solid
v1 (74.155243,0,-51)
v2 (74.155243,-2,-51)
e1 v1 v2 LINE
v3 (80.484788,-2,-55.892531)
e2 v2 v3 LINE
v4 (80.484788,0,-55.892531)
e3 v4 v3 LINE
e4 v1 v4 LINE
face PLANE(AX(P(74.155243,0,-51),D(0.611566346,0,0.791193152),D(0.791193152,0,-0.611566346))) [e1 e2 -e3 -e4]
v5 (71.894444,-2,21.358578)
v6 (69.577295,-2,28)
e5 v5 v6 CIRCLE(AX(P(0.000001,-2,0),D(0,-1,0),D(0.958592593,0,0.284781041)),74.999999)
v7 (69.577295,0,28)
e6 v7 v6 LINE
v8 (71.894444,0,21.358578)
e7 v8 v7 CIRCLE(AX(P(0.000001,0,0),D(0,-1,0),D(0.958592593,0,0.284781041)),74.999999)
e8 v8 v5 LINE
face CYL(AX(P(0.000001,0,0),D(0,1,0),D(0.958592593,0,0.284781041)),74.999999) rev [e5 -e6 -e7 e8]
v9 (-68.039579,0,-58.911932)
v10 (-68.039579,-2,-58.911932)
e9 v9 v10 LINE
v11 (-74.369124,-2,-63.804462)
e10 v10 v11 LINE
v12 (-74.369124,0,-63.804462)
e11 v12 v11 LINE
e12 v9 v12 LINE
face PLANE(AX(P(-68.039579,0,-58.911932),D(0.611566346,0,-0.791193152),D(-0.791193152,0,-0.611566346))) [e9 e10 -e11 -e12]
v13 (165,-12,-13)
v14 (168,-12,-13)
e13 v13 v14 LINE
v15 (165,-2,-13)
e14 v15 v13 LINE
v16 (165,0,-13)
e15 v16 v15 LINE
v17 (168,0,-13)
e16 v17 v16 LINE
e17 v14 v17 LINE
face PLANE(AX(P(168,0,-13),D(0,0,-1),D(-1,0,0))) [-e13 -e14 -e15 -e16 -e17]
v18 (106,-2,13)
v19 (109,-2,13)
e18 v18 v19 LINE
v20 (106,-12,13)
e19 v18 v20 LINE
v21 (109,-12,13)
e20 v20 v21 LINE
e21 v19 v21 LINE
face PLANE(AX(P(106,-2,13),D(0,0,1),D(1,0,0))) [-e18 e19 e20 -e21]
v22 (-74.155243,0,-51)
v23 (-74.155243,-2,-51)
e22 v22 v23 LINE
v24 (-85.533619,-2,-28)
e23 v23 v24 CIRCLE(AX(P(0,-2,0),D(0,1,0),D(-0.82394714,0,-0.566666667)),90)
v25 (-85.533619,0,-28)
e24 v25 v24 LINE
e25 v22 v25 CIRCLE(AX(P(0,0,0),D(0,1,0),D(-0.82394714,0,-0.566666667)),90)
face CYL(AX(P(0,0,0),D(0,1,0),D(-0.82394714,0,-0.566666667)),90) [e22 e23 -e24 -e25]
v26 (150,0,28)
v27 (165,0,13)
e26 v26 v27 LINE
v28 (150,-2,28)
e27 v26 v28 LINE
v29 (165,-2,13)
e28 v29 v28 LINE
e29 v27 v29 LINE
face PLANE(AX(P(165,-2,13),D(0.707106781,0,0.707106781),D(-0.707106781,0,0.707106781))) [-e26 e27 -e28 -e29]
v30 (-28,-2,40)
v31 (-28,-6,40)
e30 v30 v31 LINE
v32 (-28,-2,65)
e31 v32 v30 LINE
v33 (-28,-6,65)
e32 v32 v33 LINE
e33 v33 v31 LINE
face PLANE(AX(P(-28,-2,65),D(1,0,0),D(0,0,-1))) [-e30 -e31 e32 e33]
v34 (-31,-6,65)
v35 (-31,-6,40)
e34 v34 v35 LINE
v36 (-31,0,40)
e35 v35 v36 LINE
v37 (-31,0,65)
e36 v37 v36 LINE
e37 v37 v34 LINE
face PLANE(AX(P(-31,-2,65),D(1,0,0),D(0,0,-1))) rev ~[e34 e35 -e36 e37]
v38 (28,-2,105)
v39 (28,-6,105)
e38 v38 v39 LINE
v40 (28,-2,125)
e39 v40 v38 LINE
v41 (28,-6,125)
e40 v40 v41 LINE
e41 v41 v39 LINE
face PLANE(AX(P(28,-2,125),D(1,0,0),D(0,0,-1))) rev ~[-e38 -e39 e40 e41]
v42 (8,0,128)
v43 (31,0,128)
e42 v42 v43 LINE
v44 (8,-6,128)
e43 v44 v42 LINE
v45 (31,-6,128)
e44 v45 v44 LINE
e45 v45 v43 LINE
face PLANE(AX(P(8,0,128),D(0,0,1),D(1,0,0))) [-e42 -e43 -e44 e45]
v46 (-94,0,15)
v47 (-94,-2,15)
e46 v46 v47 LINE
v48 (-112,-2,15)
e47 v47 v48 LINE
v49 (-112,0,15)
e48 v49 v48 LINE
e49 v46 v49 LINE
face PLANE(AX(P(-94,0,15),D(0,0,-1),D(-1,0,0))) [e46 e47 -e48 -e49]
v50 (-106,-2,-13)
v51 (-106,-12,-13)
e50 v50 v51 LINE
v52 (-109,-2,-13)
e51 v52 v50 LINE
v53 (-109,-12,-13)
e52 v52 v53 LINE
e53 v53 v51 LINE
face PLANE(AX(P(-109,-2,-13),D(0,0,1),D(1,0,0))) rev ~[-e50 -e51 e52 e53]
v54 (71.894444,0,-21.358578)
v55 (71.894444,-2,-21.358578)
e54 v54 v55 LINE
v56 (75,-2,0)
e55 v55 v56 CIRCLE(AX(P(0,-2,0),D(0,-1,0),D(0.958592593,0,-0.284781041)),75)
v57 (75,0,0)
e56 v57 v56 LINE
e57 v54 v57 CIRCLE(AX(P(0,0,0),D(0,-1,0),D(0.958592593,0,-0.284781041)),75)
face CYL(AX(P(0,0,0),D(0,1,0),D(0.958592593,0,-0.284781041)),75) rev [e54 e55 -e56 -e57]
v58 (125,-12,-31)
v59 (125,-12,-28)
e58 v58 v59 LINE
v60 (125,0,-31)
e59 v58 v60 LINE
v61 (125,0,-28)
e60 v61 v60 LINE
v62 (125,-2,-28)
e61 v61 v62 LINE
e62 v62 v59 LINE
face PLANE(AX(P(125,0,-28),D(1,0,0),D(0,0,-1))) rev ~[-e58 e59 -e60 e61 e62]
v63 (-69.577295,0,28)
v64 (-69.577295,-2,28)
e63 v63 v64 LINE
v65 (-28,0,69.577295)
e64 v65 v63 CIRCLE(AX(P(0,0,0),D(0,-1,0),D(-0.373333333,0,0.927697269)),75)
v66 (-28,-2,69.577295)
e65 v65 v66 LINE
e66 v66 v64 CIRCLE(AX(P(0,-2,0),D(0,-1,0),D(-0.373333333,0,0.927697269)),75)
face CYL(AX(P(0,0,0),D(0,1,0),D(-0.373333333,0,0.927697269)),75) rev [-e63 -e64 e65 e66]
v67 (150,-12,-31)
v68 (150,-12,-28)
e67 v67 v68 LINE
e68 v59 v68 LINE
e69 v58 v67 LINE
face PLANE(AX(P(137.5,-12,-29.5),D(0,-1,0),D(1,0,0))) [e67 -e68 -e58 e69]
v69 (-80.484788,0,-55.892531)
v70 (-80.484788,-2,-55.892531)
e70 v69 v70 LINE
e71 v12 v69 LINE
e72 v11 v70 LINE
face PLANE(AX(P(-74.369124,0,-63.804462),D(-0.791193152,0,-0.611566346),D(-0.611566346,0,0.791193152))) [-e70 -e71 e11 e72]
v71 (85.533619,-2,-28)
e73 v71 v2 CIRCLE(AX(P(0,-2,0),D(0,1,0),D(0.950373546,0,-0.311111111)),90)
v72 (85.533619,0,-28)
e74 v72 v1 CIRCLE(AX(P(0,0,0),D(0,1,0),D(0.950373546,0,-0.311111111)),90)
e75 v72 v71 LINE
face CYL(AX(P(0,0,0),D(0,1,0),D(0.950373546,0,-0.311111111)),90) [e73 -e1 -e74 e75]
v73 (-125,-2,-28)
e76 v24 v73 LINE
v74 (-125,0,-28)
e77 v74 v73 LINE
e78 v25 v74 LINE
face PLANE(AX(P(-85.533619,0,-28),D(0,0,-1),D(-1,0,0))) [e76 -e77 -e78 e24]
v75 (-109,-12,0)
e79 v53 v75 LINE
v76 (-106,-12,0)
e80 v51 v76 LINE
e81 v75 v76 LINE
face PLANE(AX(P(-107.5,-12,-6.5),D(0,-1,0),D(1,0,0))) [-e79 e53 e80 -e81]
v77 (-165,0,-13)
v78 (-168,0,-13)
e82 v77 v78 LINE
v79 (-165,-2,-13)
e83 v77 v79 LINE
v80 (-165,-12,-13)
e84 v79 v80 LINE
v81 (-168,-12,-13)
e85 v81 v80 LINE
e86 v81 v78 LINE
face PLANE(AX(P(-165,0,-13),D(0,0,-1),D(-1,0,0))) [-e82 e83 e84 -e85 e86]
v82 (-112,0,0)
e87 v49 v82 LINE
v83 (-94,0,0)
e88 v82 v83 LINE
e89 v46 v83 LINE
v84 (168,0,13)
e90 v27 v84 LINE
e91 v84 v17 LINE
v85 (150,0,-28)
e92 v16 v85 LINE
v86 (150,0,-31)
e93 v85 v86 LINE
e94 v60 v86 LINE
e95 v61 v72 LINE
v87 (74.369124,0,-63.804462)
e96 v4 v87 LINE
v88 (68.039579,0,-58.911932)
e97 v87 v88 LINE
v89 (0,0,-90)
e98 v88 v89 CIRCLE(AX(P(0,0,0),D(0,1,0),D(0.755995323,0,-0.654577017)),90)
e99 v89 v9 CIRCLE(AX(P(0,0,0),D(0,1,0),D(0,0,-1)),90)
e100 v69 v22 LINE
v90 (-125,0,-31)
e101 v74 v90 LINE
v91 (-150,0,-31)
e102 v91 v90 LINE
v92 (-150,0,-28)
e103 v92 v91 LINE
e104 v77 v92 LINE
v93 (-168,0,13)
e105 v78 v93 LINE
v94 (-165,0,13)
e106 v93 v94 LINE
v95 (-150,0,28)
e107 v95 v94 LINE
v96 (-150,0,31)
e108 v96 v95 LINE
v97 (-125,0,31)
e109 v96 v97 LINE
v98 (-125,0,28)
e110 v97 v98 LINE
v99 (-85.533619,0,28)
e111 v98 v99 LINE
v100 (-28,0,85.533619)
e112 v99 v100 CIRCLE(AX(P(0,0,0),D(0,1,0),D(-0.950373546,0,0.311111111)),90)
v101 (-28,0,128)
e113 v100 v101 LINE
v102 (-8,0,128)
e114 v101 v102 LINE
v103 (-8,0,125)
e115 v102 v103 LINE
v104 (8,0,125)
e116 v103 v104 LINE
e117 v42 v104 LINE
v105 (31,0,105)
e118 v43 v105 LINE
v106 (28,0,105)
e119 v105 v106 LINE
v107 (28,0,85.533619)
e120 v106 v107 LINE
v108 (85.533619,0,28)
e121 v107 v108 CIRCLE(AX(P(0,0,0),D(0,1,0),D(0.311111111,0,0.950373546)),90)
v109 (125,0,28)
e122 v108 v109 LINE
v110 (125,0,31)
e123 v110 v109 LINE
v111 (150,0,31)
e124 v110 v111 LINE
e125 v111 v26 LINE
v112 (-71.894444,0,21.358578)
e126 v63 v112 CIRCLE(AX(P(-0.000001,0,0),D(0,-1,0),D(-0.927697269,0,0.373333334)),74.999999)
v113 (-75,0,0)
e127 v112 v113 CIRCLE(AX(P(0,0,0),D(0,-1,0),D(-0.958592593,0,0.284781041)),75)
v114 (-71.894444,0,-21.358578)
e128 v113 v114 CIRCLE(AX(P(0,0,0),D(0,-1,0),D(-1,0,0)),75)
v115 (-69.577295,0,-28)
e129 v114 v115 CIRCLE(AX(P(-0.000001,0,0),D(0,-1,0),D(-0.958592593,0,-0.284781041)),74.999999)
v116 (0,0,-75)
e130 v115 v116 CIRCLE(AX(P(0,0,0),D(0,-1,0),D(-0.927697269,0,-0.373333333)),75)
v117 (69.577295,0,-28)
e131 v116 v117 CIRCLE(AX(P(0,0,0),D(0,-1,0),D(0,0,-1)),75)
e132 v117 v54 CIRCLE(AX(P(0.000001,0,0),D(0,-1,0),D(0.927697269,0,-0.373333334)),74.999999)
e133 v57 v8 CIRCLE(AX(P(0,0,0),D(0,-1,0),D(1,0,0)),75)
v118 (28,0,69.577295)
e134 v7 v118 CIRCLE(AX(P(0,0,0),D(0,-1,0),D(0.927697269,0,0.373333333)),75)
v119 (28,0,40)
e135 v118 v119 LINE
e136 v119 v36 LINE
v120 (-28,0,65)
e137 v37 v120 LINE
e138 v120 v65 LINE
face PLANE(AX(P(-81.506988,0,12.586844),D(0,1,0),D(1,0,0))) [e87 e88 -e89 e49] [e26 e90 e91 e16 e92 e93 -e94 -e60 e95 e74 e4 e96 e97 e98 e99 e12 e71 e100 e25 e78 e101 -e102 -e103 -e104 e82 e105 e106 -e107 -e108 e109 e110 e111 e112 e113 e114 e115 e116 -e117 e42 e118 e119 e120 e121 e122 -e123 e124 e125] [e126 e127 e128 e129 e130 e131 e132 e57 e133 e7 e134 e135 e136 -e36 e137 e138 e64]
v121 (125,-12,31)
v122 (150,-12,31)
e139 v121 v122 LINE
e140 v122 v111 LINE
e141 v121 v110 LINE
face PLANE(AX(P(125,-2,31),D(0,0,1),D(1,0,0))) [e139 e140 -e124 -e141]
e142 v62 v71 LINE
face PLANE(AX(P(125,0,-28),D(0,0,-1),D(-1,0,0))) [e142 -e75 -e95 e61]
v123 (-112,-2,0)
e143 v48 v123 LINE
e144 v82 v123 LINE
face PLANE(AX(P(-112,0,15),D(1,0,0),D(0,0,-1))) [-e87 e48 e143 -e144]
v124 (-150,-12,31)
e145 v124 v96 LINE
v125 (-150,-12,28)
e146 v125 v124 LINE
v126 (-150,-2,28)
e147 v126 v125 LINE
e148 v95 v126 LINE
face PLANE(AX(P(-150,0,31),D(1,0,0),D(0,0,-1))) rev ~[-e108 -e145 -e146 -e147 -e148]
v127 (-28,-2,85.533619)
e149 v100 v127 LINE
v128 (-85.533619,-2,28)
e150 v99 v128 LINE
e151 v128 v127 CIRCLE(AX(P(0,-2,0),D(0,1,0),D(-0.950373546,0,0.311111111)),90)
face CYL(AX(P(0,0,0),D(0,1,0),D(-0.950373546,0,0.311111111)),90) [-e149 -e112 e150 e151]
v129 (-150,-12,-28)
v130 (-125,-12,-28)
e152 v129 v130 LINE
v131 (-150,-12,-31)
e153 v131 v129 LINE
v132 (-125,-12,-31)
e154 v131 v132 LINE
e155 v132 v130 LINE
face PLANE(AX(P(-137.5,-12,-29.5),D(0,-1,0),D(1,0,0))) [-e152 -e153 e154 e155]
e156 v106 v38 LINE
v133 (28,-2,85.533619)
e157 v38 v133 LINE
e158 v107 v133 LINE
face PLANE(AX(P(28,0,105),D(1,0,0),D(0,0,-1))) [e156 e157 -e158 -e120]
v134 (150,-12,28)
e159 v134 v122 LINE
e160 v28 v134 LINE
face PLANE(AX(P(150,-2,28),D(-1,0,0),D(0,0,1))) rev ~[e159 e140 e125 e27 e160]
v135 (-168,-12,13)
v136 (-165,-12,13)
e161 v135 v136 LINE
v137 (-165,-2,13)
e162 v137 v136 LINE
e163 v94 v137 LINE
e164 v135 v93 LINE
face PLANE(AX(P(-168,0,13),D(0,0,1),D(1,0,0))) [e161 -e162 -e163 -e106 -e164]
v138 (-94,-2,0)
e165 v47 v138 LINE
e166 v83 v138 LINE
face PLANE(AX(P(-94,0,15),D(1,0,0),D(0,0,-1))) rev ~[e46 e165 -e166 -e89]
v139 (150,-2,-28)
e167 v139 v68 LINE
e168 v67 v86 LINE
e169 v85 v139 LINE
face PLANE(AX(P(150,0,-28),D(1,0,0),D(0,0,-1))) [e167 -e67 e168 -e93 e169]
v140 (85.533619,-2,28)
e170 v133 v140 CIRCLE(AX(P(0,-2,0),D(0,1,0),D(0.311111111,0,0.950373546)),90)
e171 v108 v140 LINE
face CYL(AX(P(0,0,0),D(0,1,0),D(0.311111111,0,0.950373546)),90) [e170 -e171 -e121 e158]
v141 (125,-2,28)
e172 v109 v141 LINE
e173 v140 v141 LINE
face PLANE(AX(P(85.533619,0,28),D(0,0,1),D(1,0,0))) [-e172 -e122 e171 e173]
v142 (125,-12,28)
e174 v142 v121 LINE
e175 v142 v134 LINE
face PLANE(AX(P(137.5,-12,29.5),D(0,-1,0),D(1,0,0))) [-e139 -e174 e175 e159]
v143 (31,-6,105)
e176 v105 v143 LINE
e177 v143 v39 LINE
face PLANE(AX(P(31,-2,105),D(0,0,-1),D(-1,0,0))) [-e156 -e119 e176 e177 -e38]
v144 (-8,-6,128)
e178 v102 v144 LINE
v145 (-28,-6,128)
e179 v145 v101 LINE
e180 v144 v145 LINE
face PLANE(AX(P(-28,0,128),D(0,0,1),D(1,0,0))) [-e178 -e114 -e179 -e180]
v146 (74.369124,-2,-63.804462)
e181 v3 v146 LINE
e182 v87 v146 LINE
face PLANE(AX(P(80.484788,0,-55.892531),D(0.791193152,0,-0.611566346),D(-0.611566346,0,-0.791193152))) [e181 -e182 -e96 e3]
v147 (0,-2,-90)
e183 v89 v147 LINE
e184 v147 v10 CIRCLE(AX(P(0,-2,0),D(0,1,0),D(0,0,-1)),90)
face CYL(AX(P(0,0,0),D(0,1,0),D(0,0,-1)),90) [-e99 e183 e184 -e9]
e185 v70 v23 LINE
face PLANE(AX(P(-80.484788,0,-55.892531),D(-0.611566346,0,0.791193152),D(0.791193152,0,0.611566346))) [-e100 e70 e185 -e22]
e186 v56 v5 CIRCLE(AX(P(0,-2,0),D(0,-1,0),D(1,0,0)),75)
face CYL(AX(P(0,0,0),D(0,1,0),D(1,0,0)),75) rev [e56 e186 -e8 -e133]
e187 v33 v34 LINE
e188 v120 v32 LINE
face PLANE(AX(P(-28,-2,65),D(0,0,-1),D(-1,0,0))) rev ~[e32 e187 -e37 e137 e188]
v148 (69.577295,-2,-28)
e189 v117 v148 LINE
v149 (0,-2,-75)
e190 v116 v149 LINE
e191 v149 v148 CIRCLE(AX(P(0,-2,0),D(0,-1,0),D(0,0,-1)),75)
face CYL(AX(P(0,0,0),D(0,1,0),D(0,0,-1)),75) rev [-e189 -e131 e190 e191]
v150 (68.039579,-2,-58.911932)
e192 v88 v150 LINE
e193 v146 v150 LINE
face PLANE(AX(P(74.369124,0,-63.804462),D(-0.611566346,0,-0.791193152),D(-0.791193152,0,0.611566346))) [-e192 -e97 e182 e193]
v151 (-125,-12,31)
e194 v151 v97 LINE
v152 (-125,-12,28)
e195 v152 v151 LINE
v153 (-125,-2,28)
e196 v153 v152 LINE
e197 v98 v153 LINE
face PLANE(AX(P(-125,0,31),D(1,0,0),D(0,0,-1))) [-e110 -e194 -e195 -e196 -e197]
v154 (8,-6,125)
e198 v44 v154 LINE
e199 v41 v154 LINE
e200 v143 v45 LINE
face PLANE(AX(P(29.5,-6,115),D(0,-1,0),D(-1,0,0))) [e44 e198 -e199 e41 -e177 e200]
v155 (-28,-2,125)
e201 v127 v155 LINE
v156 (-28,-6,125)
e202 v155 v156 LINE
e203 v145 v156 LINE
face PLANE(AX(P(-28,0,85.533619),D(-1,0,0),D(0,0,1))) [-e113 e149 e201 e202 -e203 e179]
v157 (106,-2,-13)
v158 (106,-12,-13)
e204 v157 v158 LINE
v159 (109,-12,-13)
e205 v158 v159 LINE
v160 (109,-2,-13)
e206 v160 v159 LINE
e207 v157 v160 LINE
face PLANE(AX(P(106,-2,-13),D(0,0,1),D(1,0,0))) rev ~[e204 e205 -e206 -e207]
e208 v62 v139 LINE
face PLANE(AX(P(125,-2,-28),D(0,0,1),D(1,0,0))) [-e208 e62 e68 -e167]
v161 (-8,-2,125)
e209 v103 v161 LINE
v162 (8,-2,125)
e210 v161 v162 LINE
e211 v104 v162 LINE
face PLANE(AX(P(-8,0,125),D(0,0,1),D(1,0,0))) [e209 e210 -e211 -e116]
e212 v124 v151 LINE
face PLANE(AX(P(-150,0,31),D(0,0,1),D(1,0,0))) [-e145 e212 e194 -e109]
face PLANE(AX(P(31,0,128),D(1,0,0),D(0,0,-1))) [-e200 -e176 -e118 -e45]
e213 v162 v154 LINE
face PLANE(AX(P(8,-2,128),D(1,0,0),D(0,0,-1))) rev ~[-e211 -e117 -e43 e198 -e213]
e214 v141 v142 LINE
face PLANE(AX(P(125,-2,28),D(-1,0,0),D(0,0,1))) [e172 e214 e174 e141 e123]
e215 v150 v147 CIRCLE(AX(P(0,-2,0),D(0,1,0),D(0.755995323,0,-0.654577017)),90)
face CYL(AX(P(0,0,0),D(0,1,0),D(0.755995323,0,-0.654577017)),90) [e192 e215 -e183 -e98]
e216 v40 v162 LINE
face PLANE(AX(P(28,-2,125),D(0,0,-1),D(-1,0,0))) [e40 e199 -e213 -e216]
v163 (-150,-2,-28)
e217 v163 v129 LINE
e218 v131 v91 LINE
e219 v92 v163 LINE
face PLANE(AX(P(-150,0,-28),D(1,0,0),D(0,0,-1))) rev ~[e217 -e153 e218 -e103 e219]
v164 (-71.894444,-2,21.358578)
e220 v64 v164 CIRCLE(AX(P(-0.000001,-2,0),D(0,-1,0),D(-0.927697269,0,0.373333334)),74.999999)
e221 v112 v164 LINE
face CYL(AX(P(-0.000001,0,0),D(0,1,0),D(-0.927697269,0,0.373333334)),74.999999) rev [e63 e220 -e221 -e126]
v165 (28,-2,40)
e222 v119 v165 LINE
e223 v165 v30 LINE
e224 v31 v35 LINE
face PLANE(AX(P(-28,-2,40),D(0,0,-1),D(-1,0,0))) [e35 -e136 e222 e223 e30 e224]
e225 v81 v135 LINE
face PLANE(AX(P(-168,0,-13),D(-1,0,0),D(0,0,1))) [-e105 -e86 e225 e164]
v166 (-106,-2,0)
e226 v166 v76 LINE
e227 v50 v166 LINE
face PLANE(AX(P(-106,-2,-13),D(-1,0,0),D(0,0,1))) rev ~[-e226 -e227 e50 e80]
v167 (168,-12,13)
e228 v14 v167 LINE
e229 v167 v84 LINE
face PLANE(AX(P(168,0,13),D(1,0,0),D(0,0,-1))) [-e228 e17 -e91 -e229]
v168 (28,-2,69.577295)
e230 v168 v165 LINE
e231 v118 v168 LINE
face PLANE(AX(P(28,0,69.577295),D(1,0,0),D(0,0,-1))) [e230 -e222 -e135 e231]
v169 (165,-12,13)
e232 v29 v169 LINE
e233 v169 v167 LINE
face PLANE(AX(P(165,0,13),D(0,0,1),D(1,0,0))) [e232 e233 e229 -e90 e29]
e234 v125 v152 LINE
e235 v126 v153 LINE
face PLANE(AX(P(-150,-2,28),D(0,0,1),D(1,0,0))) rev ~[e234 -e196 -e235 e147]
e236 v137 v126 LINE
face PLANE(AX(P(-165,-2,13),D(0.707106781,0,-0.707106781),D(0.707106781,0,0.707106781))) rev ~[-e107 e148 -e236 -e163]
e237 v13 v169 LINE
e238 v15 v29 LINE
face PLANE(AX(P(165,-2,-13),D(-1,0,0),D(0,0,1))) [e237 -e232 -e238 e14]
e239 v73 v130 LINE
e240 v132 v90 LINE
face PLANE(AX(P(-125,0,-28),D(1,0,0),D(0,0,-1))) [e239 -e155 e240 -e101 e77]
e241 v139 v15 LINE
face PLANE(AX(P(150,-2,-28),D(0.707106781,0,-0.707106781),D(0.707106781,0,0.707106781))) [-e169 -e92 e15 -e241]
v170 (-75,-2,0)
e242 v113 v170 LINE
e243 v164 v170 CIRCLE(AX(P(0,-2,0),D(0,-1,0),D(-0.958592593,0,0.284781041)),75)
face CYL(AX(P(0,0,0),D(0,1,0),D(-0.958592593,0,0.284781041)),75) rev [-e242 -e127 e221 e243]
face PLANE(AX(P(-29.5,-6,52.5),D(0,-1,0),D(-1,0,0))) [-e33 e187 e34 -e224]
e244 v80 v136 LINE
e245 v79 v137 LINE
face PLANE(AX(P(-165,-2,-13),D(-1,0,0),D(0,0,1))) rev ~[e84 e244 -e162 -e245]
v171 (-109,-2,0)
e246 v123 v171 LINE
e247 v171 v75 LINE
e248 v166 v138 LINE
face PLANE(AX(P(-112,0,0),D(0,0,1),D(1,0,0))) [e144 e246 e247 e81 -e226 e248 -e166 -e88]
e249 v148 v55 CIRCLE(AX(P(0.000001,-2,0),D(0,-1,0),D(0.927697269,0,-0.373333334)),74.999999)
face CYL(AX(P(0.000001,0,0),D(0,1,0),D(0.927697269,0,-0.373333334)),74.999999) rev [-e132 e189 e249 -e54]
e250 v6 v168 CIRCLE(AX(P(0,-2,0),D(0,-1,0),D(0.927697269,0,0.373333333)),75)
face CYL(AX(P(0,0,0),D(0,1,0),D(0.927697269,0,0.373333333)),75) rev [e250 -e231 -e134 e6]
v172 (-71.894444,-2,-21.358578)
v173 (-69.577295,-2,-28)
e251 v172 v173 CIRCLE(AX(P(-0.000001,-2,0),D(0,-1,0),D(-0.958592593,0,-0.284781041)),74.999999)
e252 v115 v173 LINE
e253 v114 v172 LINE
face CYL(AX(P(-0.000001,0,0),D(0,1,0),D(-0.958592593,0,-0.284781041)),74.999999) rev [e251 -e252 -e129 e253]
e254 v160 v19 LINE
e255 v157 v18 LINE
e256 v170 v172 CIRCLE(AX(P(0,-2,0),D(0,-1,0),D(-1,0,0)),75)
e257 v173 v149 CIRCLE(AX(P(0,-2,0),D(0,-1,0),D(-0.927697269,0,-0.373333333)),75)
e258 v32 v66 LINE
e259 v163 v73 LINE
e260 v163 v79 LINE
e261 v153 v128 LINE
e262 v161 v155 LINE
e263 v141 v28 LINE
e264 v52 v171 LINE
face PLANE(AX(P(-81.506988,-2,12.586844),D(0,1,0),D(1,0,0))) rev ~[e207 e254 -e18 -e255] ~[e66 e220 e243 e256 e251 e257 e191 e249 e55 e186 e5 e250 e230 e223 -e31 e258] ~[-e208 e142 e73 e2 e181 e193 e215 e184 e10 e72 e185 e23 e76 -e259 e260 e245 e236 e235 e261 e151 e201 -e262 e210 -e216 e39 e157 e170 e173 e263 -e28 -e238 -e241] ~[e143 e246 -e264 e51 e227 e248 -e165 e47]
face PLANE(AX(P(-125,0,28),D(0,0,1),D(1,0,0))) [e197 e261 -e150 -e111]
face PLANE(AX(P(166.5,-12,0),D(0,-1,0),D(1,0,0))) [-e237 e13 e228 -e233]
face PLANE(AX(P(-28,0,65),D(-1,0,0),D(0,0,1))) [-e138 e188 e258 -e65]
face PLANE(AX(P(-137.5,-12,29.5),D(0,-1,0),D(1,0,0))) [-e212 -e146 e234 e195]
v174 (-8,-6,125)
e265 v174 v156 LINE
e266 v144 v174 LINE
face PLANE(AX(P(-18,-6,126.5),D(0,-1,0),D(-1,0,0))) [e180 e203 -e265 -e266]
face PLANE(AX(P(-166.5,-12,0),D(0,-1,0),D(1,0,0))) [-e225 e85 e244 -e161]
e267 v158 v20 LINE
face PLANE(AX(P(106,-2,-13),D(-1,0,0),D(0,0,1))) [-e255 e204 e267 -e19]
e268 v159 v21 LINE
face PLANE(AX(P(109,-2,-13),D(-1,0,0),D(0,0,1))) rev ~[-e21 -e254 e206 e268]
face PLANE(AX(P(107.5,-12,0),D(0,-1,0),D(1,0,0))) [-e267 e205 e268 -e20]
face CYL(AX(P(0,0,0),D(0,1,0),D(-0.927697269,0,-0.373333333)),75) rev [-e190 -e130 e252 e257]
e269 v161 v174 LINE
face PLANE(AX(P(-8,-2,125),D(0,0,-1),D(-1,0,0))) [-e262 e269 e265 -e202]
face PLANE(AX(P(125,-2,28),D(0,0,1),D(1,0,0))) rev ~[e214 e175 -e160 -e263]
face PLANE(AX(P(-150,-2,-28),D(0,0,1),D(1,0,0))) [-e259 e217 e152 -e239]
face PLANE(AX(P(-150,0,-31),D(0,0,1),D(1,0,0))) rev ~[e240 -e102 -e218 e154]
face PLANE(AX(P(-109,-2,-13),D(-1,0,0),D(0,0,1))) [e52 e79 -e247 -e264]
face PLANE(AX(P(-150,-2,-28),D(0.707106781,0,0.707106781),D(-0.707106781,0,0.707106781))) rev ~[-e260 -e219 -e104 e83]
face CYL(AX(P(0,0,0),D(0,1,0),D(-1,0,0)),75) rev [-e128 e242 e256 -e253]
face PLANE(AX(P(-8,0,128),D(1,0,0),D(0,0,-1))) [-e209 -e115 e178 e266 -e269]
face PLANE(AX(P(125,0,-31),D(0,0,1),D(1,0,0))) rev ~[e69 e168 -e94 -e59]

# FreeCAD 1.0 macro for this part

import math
import FreeCAD as App
import Part
import Sketcher


def add_polygon(sketch, points):
    """Adds a closed chain of lines whose ends are joined by coincident constraints."""
    first, n = sketch.GeometryCount, len(points)
    for a, b in zip(points, points[1:] + points[:1]):
        sketch.addGeometry(Part.LineSegment(App.Vector(*a, 0), App.Vector(*b, 0)), False)
    for i in range(n):
        sketch.addConstraint(Sketcher.Constraint("Coincident", first + i, 2, first + (i + 1) % n, 1))

doc = App.newDocument("Part")
body = doc.addObject("PartDesign::Body", "Body")

# Sketch on XZ plane
sketch1 = body.newObject("Sketcher::SketchObject", "Sketch")
sketch1.AttachmentSupport = (doc.getObject("XZ_Plane"), [""])
sketch1.MapMode = "FlatFace"
sketch1.addGeometry(Part.LineSegment(App.Vector(31, 105, 0), App.Vector(28, 105, 0)), False)  # 0
sketch1.addGeometry(Part.LineSegment(App.Vector(28, 105, 0), App.Vector(28, 85.5, 0)), False)  # 1
sketch1.addGeometry(Part.ArcOfCircle(Part.Circle(App.Vector(0, 0, 0), App.Vector(0, 0, 1), 90), math.radians(18), math.radians(72)), False)  # 2
sketch1.addGeometry(Part.LineSegment(App.Vector(85.5, 28, 0), App.Vector(125, 28, 0)), False)  # 3
sketch1.addGeometry(Part.LineSegment(App.Vector(125, 28, 0), App.Vector(125, 31, 0)), False)  # 4
sketch1.addGeometry(Part.LineSegment(App.Vector(125, 31, 0), App.Vector(150, 31, 0)), False)  # 5
sketch1.addGeometry(Part.LineSegment(App.Vector(150, 31, 0), App.Vector(150, 28, 0)), False)  # 6
sketch1.addGeometry(Part.LineSegment(App.Vector(150, 28, 0), App.Vector(165, 28, 0)), False)  # 7
sketch1.addGeometry(Part.LineSegment(App.Vector(165, 28, 0), App.Vector(165, 13, 0)), False)  # 8
sketch1.addGeometry(Part.LineSegment(App.Vector(165, 13, 0), App.Vector(168, 13, 0)), False)  # 9
sketch1.addGeometry(Part.LineSegment(App.Vector(168, 13, 0), App.Vector(168, -13, 0)), False)  # 10
sketch1.addGeometry(Part.LineSegment(App.Vector(168, -13, 0), App.Vector(165, -13, 0)), False)  # 11
sketch1.addGeometry(Part.LineSegment(App.Vector(165, -13, 0), App.Vector(165, -28, 0)), False)  # 12
sketch1.addGeometry(Part.LineSegment(App.Vector(165, -28, 0), App.Vector(150, -28, 0)), False)  # 13
sketch1.addGeometry(Part.LineSegment(App.Vector(150, -28, 0), App.Vector(150, -31, 0)), False)  # 14
sketch1.addGeometry(Part.LineSegment(App.Vector(150, -31, 0), App.Vector(125, -31, 0)), False)  # 15
sketch1.addGeometry(Part.LineSegment(App.Vector(125, -31, 0), App.Vector(125, -28, 0)), False)  # 16
sketch1.addGeometry(Part.LineSegment(App.Vector(125, -28, 0), App.Vector(85.5, -28, 0)), False)  # 17
sketch1.addGeometry(Part.ArcOfCircle(Part.Circle(App.Vector(0, 0, 0), App.Vector(0, 0, 1), 90), math.radians(-34.52), math.radians(-18.13)), False)  # 18
sketch1.addGeometry(Part.LineSegment(App.Vector(74.2, -51, 0), App.Vector(80.5, -55.9, 0)), False)  # 19
sketch1.addGeometry(Part.LineSegment(App.Vector(80.5, -55.9, 0), App.Vector(74.4, -63.8, 0)), False)  # 20
sketch1.addGeometry(Part.LineSegment(App.Vector(74.4, -63.8, 0), App.Vector(68, -58.9, 0)), False)  # 21
sketch1.addGeometry(Part.ArcOfCircle(Part.Circle(App.Vector(0, 0, 0), App.Vector(0, 0, 1), 90), math.radians(-90), math.radians(-41)), False)  # 22
sketch1.addGeometry(Part.ArcOfCircle(Part.Circle(App.Vector(0, 0, 0), App.Vector(0, 0, 1), 90), math.radians(-139), math.radians(-90)), False)  # 23
sketch1.addGeometry(Part.LineSegment(App.Vector(-68, -58.9, 0), App.Vector(-74.4, -63.8, 0)), False)  # 24
sketch1.addGeometry(Part.LineSegment(App.Vector(-74.4, -63.8, 0), App.Vector(-80.5, -55.9, 0)), False)  # 25
sketch1.addGeometry(Part.LineSegment(App.Vector(-80.5, -55.9, 0), App.Vector(-74.2, -51, 0)), False)  # 26
sketch1.addGeometry(Part.ArcOfCircle(Part.Circle(App.Vector(0, 0, 0), App.Vector(0, 0, 1), 90), math.radians(-161.87), math.radians(-145.48)), False)  # 27
sketch1.addGeometry(Part.LineSegment(App.Vector(-85.5, -28, 0), App.Vector(-125, -28, 0)), False)  # 28
sketch1.addGeometry(Part.LineSegment(App.Vector(-125, -28, 0), App.Vector(-125, -31, 0)), False)  # 29
sketch1.addGeometry(Part.LineSegment(App.Vector(-125, -31, 0), App.Vector(-150, -31, 0)), False)  # 30
sketch1.addGeometry(Part.LineSegment(App.Vector(-150, -31, 0), App.Vector(-150, -28, 0)), False)  # 31
sketch1.addGeometry(Part.LineSegment(App.Vector(-150, -28, 0), App.Vector(-165, -28, 0)), False)  # 32
sketch1.addGeometry(Part.LineSegment(App.Vector(-165, -28, 0), App.Vector(-165, -13, 0)), False)  # 33
sketch1.addGeometry(Part.LineSegment(App.Vector(-165, -13, 0), App.Vector(-168, -13, 0)), False)  # 34
sketch1.addGeometry(Part.LineSegment(App.Vector(-168, -13, 0), App.Vector(-168, 13, 0)), False)  # 35
sketch1.addGeometry(Part.LineSegment(App.Vector(-168, 13, 0), App.Vector(-165, 13, 0)), False)  # 36
sketch1.addGeometry(Part.LineSegment(App.Vector(-165, 13, 0), App.Vector(-165, 28, 0)), False)  # 37
sketch1.addGeometry(Part.LineSegment(App.Vector(-165, 28, 0), App.Vector(-150, 28, 0)), False)  # 38
sketch1.addGeometry(Part.LineSegment(App.Vector(-150, 28, 0), App.Vector(-150, 31, 0)), False)  # 39
sketch1.addGeometry(Part.LineSegment(App.Vector(-150, 31, 0), App.Vector(-125, 31, 0)), False)  # 40
sketch1.addGeometry(Part.LineSegment(App.Vector(-125, 31, 0), App.Vector(-125, 28, 0)), False)  # 41
sketch1.addGeometry(Part.LineSegment(App.Vector(-125, 28, 0), App.Vector(-85.5, 28, 0)), False)  # 42
sketch1.addGeometry(Part.ArcOfCircle(Part.Circle(App.Vector(0, 0, 0), App.Vector(0, 0, 1), 90), math.radians(108), math.radians(162)), False)  # 43
sketch1.addGeometry(Part.LineSegment(App.Vector(-28, 85.5, 0), App.Vector(-28, 128, 0)), False)  # 44
sketch1.addGeometry(Part.LineSegment(App.Vector(-28, 128, 0), App.Vector(-8, 128, 0)), False)  # 45
sketch1.addGeometry(Part.LineSegment(App.Vector(-8, 128, 0), App.Vector(-8, 125, 0)), False)  # 46
sketch1.addGeometry(Part.LineSegment(App.Vector(-8, 125, 0), App.Vector(8, 125, 0)), False)  # 47
sketch1.addGeometry(Part.LineSegment(App.Vector(8, 125, 0), App.Vector(8, 128, 0)), False)  # 48
sketch1.addGeometry(Part.LineSegment(App.Vector(8, 128, 0), App.Vector(31, 128, 0)), False)  # 49
sketch1.addGeometry(Part.LineSegment(App.Vector(31, 128, 0), App.Vector(31, 105, 0)), False)  # 50
add_polygon(sketch1, [(-112, 15), (-112, 0), (-94, 0), (-94, 15)])  # lines 51-54
sketch1.addGeometry(Part.ArcOfCircle(Part.Circle(App.Vector(0, 0, 0), App.Vector(0, 0, 1), 75), math.radians(112), math.radians(158)), False)  # 55
sketch1.addGeometry(Part.ArcOfCircle(Part.Circle(App.Vector(0, 0, 0), App.Vector(0, 0, 1), 75), math.radians(158.08), math.radians(163.45)), False)  # 56
sketch1.addGeometry(Part.ArcOfCircle(Part.Circle(App.Vector(0, 0, 0), App.Vector(0, 0, 1), 75), math.radians(163.45), math.radians(180)), False)  # 57
sketch1.addGeometry(Part.ArcOfCircle(Part.Circle(App.Vector(0, 0, 0), App.Vector(0, 0, 1), 75), math.radians(-180), math.radians(-163.45)), False)  # 58
sketch1.addGeometry(Part.ArcOfCircle(Part.Circle(App.Vector(0, 0, 0), App.Vector(0, 0, 1), 75), math.radians(-163.45), math.radians(-158.08)), False)  # 59
sketch1.addGeometry(Part.ArcOfCircle(Part.Circle(App.Vector(0, 0, 0), App.Vector(0, 0, 1), 75), math.radians(-158), math.radians(-90)), False)  # 60
sketch1.addGeometry(Part.ArcOfCircle(Part.Circle(App.Vector(0, 0, 0), App.Vector(0, 0, 1), 75), math.radians(-90), math.radians(-22)), False)  # 61
sketch1.addGeometry(Part.ArcOfCircle(Part.Circle(App.Vector(0, 0, 0), App.Vector(0, 0, 1), 75), math.radians(-21.92), math.radians(-16.55)), False)  # 62
sketch1.addGeometry(Part.ArcOfCircle(Part.Circle(App.Vector(0, 0, 0), App.Vector(0, 0, 1), 75), math.radians(-16.55), math.radians(0)), False)  # 63
sketch1.addGeometry(Part.ArcOfCircle(Part.Circle(App.Vector(0, 0, 0), App.Vector(0, 0, 1), 75), math.radians(0), math.radians(16.55)), False)  # 64
sketch1.addGeometry(Part.ArcOfCircle(Part.Circle(App.Vector(0, 0, 0), App.Vector(0, 0, 1), 75), math.radians(16.55), math.radians(21.92)), False)  # 65
sketch1.addGeometry(Part.ArcOfCircle(Part.Circle(App.Vector(0, 0, 0), App.Vector(0, 0, 1), 75), math.radians(22), math.radians(68)), False)  # 66
sketch1.addGeometry(Part.LineSegment(App.Vector(28, 69.6, 0), App.Vector(28, 40, 0)), False)  # 67
sketch1.addGeometry(Part.LineSegment(App.Vector(28, 40, 0), App.Vector(-31, 40, 0)), False)  # 68
sketch1.addGeometry(Part.LineSegment(App.Vector(-31, 40, 0), App.Vector(-31, 65, 0)), False)  # 69
sketch1.addGeometry(Part.LineSegment(App.Vector(-31, 65, 0), App.Vector(-28, 65, 0)), False)  # 70
sketch1.addGeometry(Part.LineSegment(App.Vector(-28, 65, 0), App.Vector(-28, 69.6, 0)), False)  # 71
sketch1.addConstraint(Sketcher.Constraint("Coincident", 0, 2, 1, 1))
sketch1.addConstraint(Sketcher.Constraint("Coincident", 1, 2, 2, 2))
sketch1.addConstraint(Sketcher.Constraint("Coincident", 2, 1, 3, 1))
sketch1.addConstraint(Sketcher.Constraint("Coincident", 3, 2, 4, 1))
sketch1.addConstraint(Sketcher.Constraint("Coincident", 4, 2, 5, 1))
sketch1.addConstraint(Sketcher.Constraint("Coincident", 5, 2, 6, 1))
sketch1.addConstraint(Sketcher.Constraint("Coincident", 6, 2, 7, 1))
sketch1.addConstraint(Sketcher.Constraint("Coincident", 7, 2, 8, 1))
sketch1.addConstraint(Sketcher.Constraint("Coincident", 8, 2, 9, 1))
sketch1.addConstraint(Sketcher.Constraint("Coincident", 9, 2, 10, 1))
sketch1.addConstraint(Sketcher.Constraint("Coincident", 10, 2, 11, 1))
sketch1.addConstraint(Sketcher.Constraint("Coincident", 11, 2, 12, 1))
sketch1.addConstraint(Sketcher.Constraint("Coincident", 12, 2, 13, 1))
sketch1.addConstraint(Sketcher.Constraint("Coincident", 13, 2, 14, 1))
sketch1.addConstraint(Sketcher.Constraint("Coincident", 14, 2, 15, 1))
sketch1.addConstraint(Sketcher.Constraint("Coincident", 15, 2, 16, 1))
sketch1.addConstraint(Sketcher.Constraint("Coincident", 16, 2, 17, 1))
sketch1.addConstraint(Sketcher.Constraint("Coincident", 17, 2, 18, 2))
sketch1.addConstraint(Sketcher.Constraint("Coincident", 18, 1, 19, 1))
sketch1.addConstraint(Sketcher.Constraint("Coincident", 19, 2, 20, 1))
sketch1.addConstraint(Sketcher.Constraint("Coincident", 20, 2, 21, 1))
sketch1.addConstraint(Sketcher.Constraint("Coincident", 21, 2, 22, 2))
sketch1.addConstraint(Sketcher.Constraint("Tangent", 22, 1, 23, 2))
sketch1.addConstraint(Sketcher.Constraint("Coincident", 23, 1, 24, 1))
sketch1.addConstraint(Sketcher.Constraint("Coincident", 24, 2, 25, 1))
sketch1.addConstraint(Sketcher.Constraint("Coincident", 25, 2, 26, 1))
sketch1.addConstraint(Sketcher.Constraint("Coincident", 26, 2, 27, 2))
sketch1.addConstraint(Sketcher.Constraint("Coincident", 27, 1, 28, 1))
sketch1.addConstraint(Sketcher.Constraint("Coincident", 28, 2, 29, 1))
sketch1.addConstraint(Sketcher.Constraint("Coincident", 29, 2, 30, 1))
sketch1.addConstraint(Sketcher.Constraint("Coincident", 30, 2, 31, 1))
sketch1.addConstraint(Sketcher.Constraint("Coincident", 31, 2, 32, 1))
sketch1.addConstraint(Sketcher.Constraint("Coincident", 32, 2, 33, 1))
sketch1.addConstraint(Sketcher.Constraint("Coincident", 33, 2, 34, 1))
sketch1.addConstraint(Sketcher.Constraint("Coincident", 34, 2, 35, 1))
sketch1.addConstraint(Sketcher.Constraint("Coincident", 35, 2, 36, 1))
sketch1.addConstraint(Sketcher.Constraint("Coincident", 36, 2, 37, 1))
sketch1.addConstraint(Sketcher.Constraint("Coincident", 37, 2, 38, 1))
sketch1.addConstraint(Sketcher.Constraint("Coincident", 38, 2, 39, 1))
sketch1.addConstraint(Sketcher.Constraint("Coincident", 39, 2, 40, 1))
sketch1.addConstraint(Sketcher.Constraint("Coincident", 40, 2, 41, 1))
sketch1.addConstraint(Sketcher.Constraint("Coincident", 41, 2, 42, 1))
sketch1.addConstraint(Sketcher.Constraint("Coincident", 42, 2, 43, 2))
sketch1.addConstraint(Sketcher.Constraint("Coincident", 43, 1, 44, 1))
sketch1.addConstraint(Sketcher.Constraint("Coincident", 44, 2, 45, 1))
sketch1.addConstraint(Sketcher.Constraint("Coincident", 45, 2, 46, 1))
sketch1.addConstraint(Sketcher.Constraint("Coincident", 46, 2, 47, 1))
sketch1.addConstraint(Sketcher.Constraint("Coincident", 47, 2, 48, 1))
sketch1.addConstraint(Sketcher.Constraint("Coincident", 48, 2, 49, 1))
sketch1.addConstraint(Sketcher.Constraint("Coincident", 49, 2, 50, 1))
sketch1.addConstraint(Sketcher.Constraint("Coincident", 50, 2, 0, 1))
sketch1.addConstraint(Sketcher.Constraint("Tangent", 55, 2, 56, 1))
sketch1.addConstraint(Sketcher.Constraint("Tangent", 56, 2, 57, 1))
sketch1.addConstraint(Sketcher.Constraint("Tangent", 57, 2, 58, 1))
sketch1.addConstraint(Sketcher.Constraint("Tangent", 58, 2, 59, 1))
sketch1.addConstraint(Sketcher.Constraint("Tangent", 59, 2, 60, 1))
sketch1.addConstraint(Sketcher.Constraint("Tangent", 60, 2, 61, 1))
sketch1.addConstraint(Sketcher.Constraint("Tangent", 61, 2, 62, 1))
sketch1.addConstraint(Sketcher.Constraint("Tangent", 62, 2, 63, 1))
sketch1.addConstraint(Sketcher.Constraint("Tangent", 63, 2, 64, 1))
sketch1.addConstraint(Sketcher.Constraint("Tangent", 64, 2, 65, 1))
sketch1.addConstraint(Sketcher.Constraint("Tangent", 65, 2, 66, 1))
sketch1.addConstraint(Sketcher.Constraint("Coincident", 66, 2, 67, 1))
sketch1.addConstraint(Sketcher.Constraint("Coincident", 67, 2, 68, 1))
sketch1.addConstraint(Sketcher.Constraint("Coincident", 68, 2, 69, 1))
sketch1.addConstraint(Sketcher.Constraint("Coincident", 69, 2, 70, 1))
sketch1.addConstraint(Sketcher.Constraint("Coincident", 70, 2, 71, 1))
sketch1.addConstraint(Sketcher.Constraint("Coincident", 71, 2, 55, 1))
sketch1.addConstraint(Sketcher.Constraint("Horizontal", 0))
sketch1.addConstraint(Sketcher.Constraint("Vertical", 1))
sketch1.addConstraint(Sketcher.Constraint("Horizontal", 3))
sketch1.addConstraint(Sketcher.Constraint("Vertical", 4))
sketch1.addConstraint(Sketcher.Constraint("Horizontal", 5))
sketch1.addConstraint(Sketcher.Constraint("Vertical", 6))
sketch1.addConstraint(Sketcher.Constraint("Horizontal", 7))
sketch1.addConstraint(Sketcher.Constraint("Vertical", 8))
sketch1.addConstraint(Sketcher.Constraint("Horizontal", 9))
sketch1.addConstraint(Sketcher.Constraint("Vertical", 10))
sketch1.addConstraint(Sketcher.Constraint("Horizontal", 11))
sketch1.addConstraint(Sketcher.Constraint("Vertical", 12))
sketch1.addConstraint(Sketcher.Constraint("Horizontal", 13))
sketch1.addConstraint(Sketcher.Constraint("Vertical", 14))
sketch1.addConstraint(Sketcher.Constraint("Horizontal", 15))
sketch1.addConstraint(Sketcher.Constraint("Vertical", 16))
sketch1.addConstraint(Sketcher.Constraint("Horizontal", 17))
sketch1.addConstraint(Sketcher.Constraint("Horizontal", 28))
sketch1.addConstraint(Sketcher.Constraint("Vertical", 29))
sketch1.addConstraint(Sketcher.Constraint("Horizontal", 30))
sketch1.addConstraint(Sketcher.Constraint("Vertical", 31))
sketch1.addConstraint(Sketcher.Constraint("Horizontal", 32))
sketch1.addConstraint(Sketcher.Constraint("Vertical", 33))
sketch1.addConstraint(Sketcher.Constraint("Horizontal", 34))
sketch1.addConstraint(Sketcher.Constraint("Vertical", 35))
sketch1.addConstraint(Sketcher.Constraint("Horizontal", 36))
sketch1.addConstraint(Sketcher.Constraint("Vertical", 37))
sketch1.addConstraint(Sketcher.Constraint("Horizontal", 38))
sketch1.addConstraint(Sketcher.Constraint("Vertical", 39))
sketch1.addConstraint(Sketcher.Constraint("Horizontal", 40))
sketch1.addConstraint(Sketcher.Constraint("Vertical", 41))
sketch1.addConstraint(Sketcher.Constraint("Horizontal", 42))
sketch1.addConstraint(Sketcher.Constraint("Vertical", 44))
sketch1.addConstraint(Sketcher.Constraint("Horizontal", 45))
sketch1.addConstraint(Sketcher.Constraint("Vertical", 46))
sketch1.addConstraint(Sketcher.Constraint("Horizontal", 47))
sketch1.addConstraint(Sketcher.Constraint("Vertical", 48))
sketch1.addConstraint(Sketcher.Constraint("Horizontal", 49))
sketch1.addConstraint(Sketcher.Constraint("Vertical", 50))
sketch1.addConstraint(Sketcher.Constraint("Vertical", 51))
sketch1.addConstraint(Sketcher.Constraint("Horizontal", 52))
sketch1.addConstraint(Sketcher.Constraint("Vertical", 53))
sketch1.addConstraint(Sketcher.Constraint("Horizontal", 54))
sketch1.addConstraint(Sketcher.Constraint("Vertical", 67))
sketch1.addConstraint(Sketcher.Constraint("Horizontal", 68))
sketch1.addConstraint(Sketcher.Constraint("Vertical", 69))
sketch1.addConstraint(Sketcher.Constraint("Horizontal", 70))
sketch1.addConstraint(Sketcher.Constraint("Vertical", 71))
sketch1.addConstraint(Sketcher.Constraint("Coincident", 2, 3, -1, 1))
sketch1.addConstraint(Sketcher.Constraint("Coincident", 18, 3, -1, 1))
sketch1.addConstraint(Sketcher.Constraint("Coincident", 22, 3, -1, 1))
sketch1.addConstraint(Sketcher.Constraint("Coincident", 27, 3, -1, 1))
sketch1.addConstraint(Sketcher.Constraint("Coincident", 43, 3, -1, 1))
sketch1.addConstraint(Sketcher.Constraint("Coincident", 55, 3, -1, 1))
sketch1.addConstraint(Sketcher.Constraint("Coincident", 57, 3, -1, 1))
sketch1.addConstraint(Sketcher.Constraint("Coincident", 59, 3, -1, 1))
sketch1.addConstraint(Sketcher.Constraint("Coincident", 61, 3, -1, 1))
sketch1.addConstraint(Sketcher.Constraint("Coincident", 63, 3, -1, 1))
sketch1.addConstraint(Sketcher.Constraint("Coincident", 65, 3, -1, 1))
sketch1.addConstraint(Sketcher.Constraint("Equal", 2, 18))
sketch1.addConstraint(Sketcher.Constraint("Equal", 18, 22))
sketch1.addConstraint(Sketcher.Constraint("Equal", 22, 23))
sketch1.addConstraint(Sketcher.Constraint("Equal", 23, 27))
sketch1.addConstraint(Sketcher.Constraint("Equal", 27, 43))
sketch1.addConstraint(Sketcher.Constraint("Equal", 65, 66))
sketch1.addConstraint(Sketcher.Constraint("Symmetric", 3, 2, 28, 2, -1, 1))
sketch1.addConstraint(Sketcher.Constraint("Symmetric", 5, 2, 30, 2, -1, 1))
sketch1.addConstraint(Sketcher.Constraint("Symmetric", 7, 2, 32, 2, -1, 1))
sketch1.addConstraint(Sketcher.Constraint("Symmetric", 9, 2, 34, 2, -1, 1))
sketch1.addConstraint(Sketcher.Constraint("Symmetric", 11, 2, 36, 2, -1, 1))
sketch1.addConstraint(Sketcher.Constraint("Symmetric", 13, 2, 38, 2, -1, 1))
sketch1.addConstraint(Sketcher.Constraint("Symmetric", 15, 2, 40, 2, -1, 1))
sketch1.addConstraint(Sketcher.Constraint("Symmetric", 20, 2, 24, 2, -2))
sketch1.addConstraint(Sketcher.Constraint("Symmetric", 19, 2, 25, 2, -2))
sketch1.addConstraint(Sketcher.Constraint("Symmetric", 16, 2, 28, 2, -2))
sketch1.addConstraint(Sketcher.Constraint("Symmetric", 14, 2, 30, 2, -2))
sketch1.addConstraint(Sketcher.Constraint("Symmetric", 12, 2, 32, 2, -2))
sketch1.addConstraint(Sketcher.Constraint("Symmetric", 45, 2, 48, 2, -2))
sketch1.addConstraint(Sketcher.Constraint("PointOnObject", 22, 1, -2))
sketch1.addConstraint(Sketcher.Constraint("PointOnObject", 51, 2, -1))
sketch1.addConstraint(Sketcher.Constraint("PointOnObject", 57, 2, -1))
sketch1.addConstraint(Sketcher.Constraint("PointOnObject", 60, 2, -2))
sketch1.addConstraint(Sketcher.Constraint("PointOnObject", 63, 2, -1))
sketch1.addConstraint(Sketcher.Constraint("Perpendicular", 19, 20))
sketch1.addConstraint(Sketcher.Constraint("Perpendicular", 20, 21))
sketch1.addConstraint(Sketcher.Constraint("Perpendicular", 24, 25))
sketch1.addConstraint(Sketcher.Constraint("Perpendicular", 25, 26))
sketch1.addConstraint(Sketcher.Constraint("Horizontal", 3, 2, 6, 2))
sketch1.addConstraint(Sketcher.Constraint("Horizontal", 11, 2, 33, 2))
sketch1.addConstraint(Sketcher.Constraint("Horizontal", 38, 2, 41, 2))
sketch1.addConstraint(Sketcher.Constraint("Horizontal", 1, 2, 43, 1))
sketch1.addConstraint(Sketcher.Constraint("Horizontal", 42, 2, 55, 2))
sketch1.addConstraint(Sketcher.Constraint("Horizontal", 32, 2, 59, 2))
sketch1.addConstraint(Sketcher.Constraint("Horizontal", 59, 2, 61, 2))
sketch1.addConstraint(Sketcher.Constraint("Horizontal", 58, 2, 62, 2))
sketch1.addConstraint(Sketcher.Constraint("Horizontal", 56, 2, 64, 2))
sketch1.addConstraint(Sketcher.Constraint("Horizontal", 55, 2, 65, 2))
sketch1.addConstraint(Sketcher.Constraint("Horizontal", 66, 2, 71, 2))
sketch1.addConstraint(Sketcher.Constraint("Vertical", 56, 2, 58, 2))
sketch1.addConstraint(Sketcher.Constraint("Vertical", 1, 2, 66, 2))
sketch1.addConstraint(Sketcher.Constraint("Equal", 0, 9))
sketch1.addConstraint(Sketcher.Constraint("Equal", 36, 70))
sketch1.addConstraint(Sketcher.Constraint("Equal", 70, 4))
sketch1.addConstraint(Sketcher.Constraint("Equal", 38, 8))
sketch1.addConstraint(Sketcher.Constraint("Equal", 41, 46))
sketch1.addConstraint(Sketcher.Constraint("Equal", 49, 50))
sketch1.addConstraint(Sketcher.Constraint("Equal", 37, 51))
sketch1.addConstraint(Sketcher.Constraint("Equal", 40, 69))
sketch1.addConstraint(Sketcher.Constraint("Equal", 19, 21))
sketch1.addConstraint(Sketcher.Constraint("Radius", 2, 90.0))
sketch1.addConstraint(Sketcher.Constraint("Radius", 55, 75.0))
sketch1.addConstraint(Sketcher.Constraint("DistanceX", 0, 2, 0, 1, 3.0))
sketch1.addConstraint(Sketcher.Constraint("DistanceX", 5, 1, 5, 2, 25.0))
sketch1.addConstraint(Sketcher.Constraint("DistanceX", 7, 1, 7, 2, 15.0))
sketch1.addConstraint(Sketcher.Constraint("DistanceX", 45, 1, 45, 2, 20.0))
sketch1.addConstraint(Sketcher.Constraint("DistanceX", 47, 1, 47, 2, 16.0))
sketch1.addConstraint(Sketcher.Constraint("DistanceX", 52, 1, 52, 2, 18.0))
sketch1.addConstraint(Sketcher.Constraint("DistanceY", 10, 2, 10, 1, 26.0))
sketch1.addConstraint(Sketcher.Constraint("Distance", 19, 8.0))
sketch1.addConstraint(Sketcher.Constraint("Distance", 20, 10.0))
sketch1.addConstraint(Sketcher.Constraint("DistanceY", -1, 1, 0, 2, 105.0))
sketch1.addConstraint(Sketcher.Constraint("DistanceX", -1, 1, 3, 2, 125.0))
sketch1.addConstraint(Sketcher.Constraint("DistanceY", 18, 1, -1, 1, 51.0))
sketch1.addConstraint(Sketcher.Constraint("DistanceX", 51, 2, -1, 1, 112.0))
sketch1.addConstraint(Sketcher.Constraint("DistanceY", -1, 1, 67, 2, 40.0))
sketch1.addConstraint(Sketcher.Constraint("DistanceY", -1, 1, 56, 2, 21.358578))
pad1 = body.newObject("PartDesign::Pad", "Pad")
pad1.Profile = sketch1
pad1.Length = 2

# Sketch on XZ plane
sketch2 = body.newObject("Sketcher::SketchObject", "Sketch001")
sketch2.AttachmentSupport = (doc.getObject("XZ_Plane"), [""])
sketch2.MapMode = "FlatFace"
sketch2.AttachmentOffset = App.Placement(App.Vector(0, 0, 2), App.Rotation())
add_polygon(sketch2, [(125, 31), (125, 28), (150, 28), (150, 31)])  # lines 0-3
add_polygon(sketch2, [(106, 13), (106, -13), (109, -13), (109, 13)])  # lines 4-7
add_polygon(sketch2, [(165, 13), (165, -13), (168, -13), (168, 13)])  # lines 8-11
add_polygon(sketch2, [(125, -28), (125, -31), (150, -31), (150, -28)])  # lines 12-15
add_polygon(sketch2, [(-168, 13), (-168, -13), (-165, -13), (-165, 13)])  # lines 16-19
add_polygon(sketch2, [(-150, -28), (-150, -31), (-125, -31), (-125, -28)])  # lines 20-23
add_polygon(sketch2, [(-109, 0), (-109, -13), (-106, -13), (-106, 0)])  # lines 24-27
add_polygon(sketch2, [(-150, 31), (-150, 28), (-125, 28), (-125, 31)])  # lines 28-31
sketch2.addConstraint(Sketcher.Constraint("Vertical", 0))
sketch2.addConstraint(Sketcher.Constraint("Horizontal", 1))
sketch2.addConstraint(Sketcher.Constraint("Vertical", 2))
sketch2.addConstraint(Sketcher.Constraint("Horizontal", 3))
sketch2.addConstraint(Sketcher.Constraint("Vertical", 4))
sketch2.addConstraint(Sketcher.Constraint("Horizontal", 5))
sketch2.addConstraint(Sketcher.Constraint("Vertical", 6))
sketch2.addConstraint(Sketcher.Constraint("Horizontal", 7))
sketch2.addConstraint(Sketcher.Constraint("Vertical", 8))
sketch2.addConstraint(Sketcher.Constraint("Horizontal", 9))
sketch2.addConstraint(Sketcher.Constraint("Vertical", 10))
sketch2.addConstraint(Sketcher.Constraint("Horizontal", 11))
sketch2.addConstraint(Sketcher.Constraint("Vertical", 12))
sketch2.addConstraint(Sketcher.Constraint("Horizontal", 13))
sketch2.addConstraint(Sketcher.Constraint("Vertical", 14))
sketch2.addConstraint(Sketcher.Constraint("Horizontal", 15))
sketch2.addConstraint(Sketcher.Constraint("Vertical", 16))
sketch2.addConstraint(Sketcher.Constraint("Horizontal", 17))
sketch2.addConstraint(Sketcher.Constraint("Vertical", 18))
sketch2.addConstraint(Sketcher.Constraint("Horizontal", 19))
sketch2.addConstraint(Sketcher.Constraint("Vertical", 20))
sketch2.addConstraint(Sketcher.Constraint("Horizontal", 21))
sketch2.addConstraint(Sketcher.Constraint("Vertical", 22))
sketch2.addConstraint(Sketcher.Constraint("Horizontal", 23))
sketch2.addConstraint(Sketcher.Constraint("Vertical", 24))
sketch2.addConstraint(Sketcher.Constraint("Horizontal", 25))
sketch2.addConstraint(Sketcher.Constraint("Vertical", 26))
sketch2.addConstraint(Sketcher.Constraint("Horizontal", 27))
sketch2.addConstraint(Sketcher.Constraint("Vertical", 28))
sketch2.addConstraint(Sketcher.Constraint("Horizontal", 29))
sketch2.addConstraint(Sketcher.Constraint("Vertical", 30))
sketch2.addConstraint(Sketcher.Constraint("Horizontal", 31))
sketch2.addConstraint(Sketcher.Constraint("Symmetric", 10, 2, 16, 2, -1, 1))
sketch2.addConstraint(Sketcher.Constraint("Symmetric", 8, 2, 18, 2, -1, 1))
sketch2.addConstraint(Sketcher.Constraint("Symmetric", 2, 2, 20, 2, -1, 1))
sketch2.addConstraint(Sketcher.Constraint("Symmetric", 0, 2, 22, 2, -1, 1))
sketch2.addConstraint(Sketcher.Constraint("Symmetric", 6, 2, 24, 2, -1, 1))
sketch2.addConstraint(Sketcher.Constraint("Symmetric", 14, 2, 28, 2, -1, 1))
sketch2.addConstraint(Sketcher.Constraint("Symmetric", 12, 2, 30, 2, -1, 1))
sketch2.addConstraint(Sketcher.Constraint("Symmetric", 13, 2, 20, 2, -2))
sketch2.addConstraint(Sketcher.Constraint("Symmetric", 15, 2, 22, 2, -2))
sketch2.addConstraint(Sketcher.Constraint("Symmetric", 4, 2, 25, 2, -2))
sketch2.addConstraint(Sketcher.Constraint("PointOnObject", 26, 2, -1))
sketch2.addConstraint(Sketcher.Constraint("Horizontal", 5, 2, 8, 2))
sketch2.addConstraint(Sketcher.Constraint("Horizontal", 7, 2, 10, 2))
sketch2.addConstraint(Sketcher.Constraint("Equal", 7, 9))
sketch2.addConstraint(Sketcher.Constraint("Equal", 27, 0))
sketch2.addConstraint(Sketcher.Constraint("DistanceX", 1, 1, 1, 2, 25.0))
sketch2.addConstraint(Sketcher.Constraint("DistanceX", 5, 1, 5, 2, 3.0))
sketch2.addConstraint(Sketcher.Constraint("DistanceY", 4, 2, 4, 1, 26.0))
sketch2.addConstraint(Sketcher.Constraint("DistanceX", -1, 1, 0, 2, 125.0))
sketch2.addConstraint(Sketcher.Constraint("DistanceY", -1, 1, 0, 2, 28.0))
sketch2.addConstraint(Sketcher.Constraint("DistanceX", -1, 1, 4, 2, 106.0))
sketch2.addConstraint(Sketcher.Constraint("DistanceX", -1, 1, 8, 2, 165.0))
pad2 = body.newObject("PartDesign::Pad", "Pad001")
pad2.Profile = sketch2
pad2.Length = 10

# Sketch on XZ plane
sketch3 = body.newObject("Sketcher::SketchObject", "Sketch002")
sketch3.AttachmentSupport = (doc.getObject("XZ_Plane"), [""])
sketch3.MapMode = "FlatFace"
sketch3.AttachmentOffset = App.Placement(App.Vector(0, 0, 2), App.Rotation())
add_polygon(sketch3, [(-28, 40), (-28, 65), (-31, 65), (-31, 40)])  # lines 0-3
add_polygon(sketch3, [(31, 105), (31, 128), (8, 128), (8, 125), (28, 125), (28, 105)])  # lines 4-9
add_polygon(sketch3, [(-8, 125), (-8, 128), (-28, 128), (-28, 125)])  # lines 10-13
sketch3.addConstraint(Sketcher.Constraint("Vertical", 0))
sketch3.addConstraint(Sketcher.Constraint("Horizontal", 1))
sketch3.addConstraint(Sketcher.Constraint("Vertical", 2))
sketch3.addConstraint(Sketcher.Constraint("Horizontal", 3))
sketch3.addConstraint(Sketcher.Constraint("Vertical", 4))
sketch3.addConstraint(Sketcher.Constraint("Horizontal", 5))
sketch3.addConstraint(Sketcher.Constraint("Vertical", 6))
sketch3.addConstraint(Sketcher.Constraint("Horizontal", 7))
sketch3.addConstraint(Sketcher.Constraint("Vertical", 8))
sketch3.addConstraint(Sketcher.Constraint("Horizontal", 9))
sketch3.addConstraint(Sketcher.Constraint("Vertical", 10))
sketch3.addConstraint(Sketcher.Constraint("Horizontal", 11))
sketch3.addConstraint(Sketcher.Constraint("Vertical", 12))
sketch3.addConstraint(Sketcher.Constraint("Horizontal", 13))
sketch3.addConstraint(Sketcher.Constraint("Symmetric", 5, 2, 10, 2, -2))
sketch3.addConstraint(Sketcher.Constraint("Symmetric", 7, 2, 12, 2, -2))
sketch3.addConstraint(Sketcher.Constraint("Vertical", 3, 2, 11, 2))
sketch3.addConstraint(Sketcher.Constraint("Equal", 3, 9))
sketch3.addConstraint(Sketcher.Constraint("Equal", 5, 4))
sketch3.addConstraint(Sketcher.Constraint("Equal", 9, 6))
sketch3.addConstraint(Sketcher.Constraint("DistanceX", 1, 2, 1, 1, 3.0))
sketch3.addConstraint(Sketcher.Constraint("DistanceX", 5, 2, 5, 1, 23.0))
sketch3.addConstraint(Sketcher.Constraint("DistanceY", 0, 1, 0, 2, 25.0))
sketch3.addConstraint(Sketcher.Constraint("DistanceX", 0, 2, -1, 1, 28.0))
sketch3.addConstraint(Sketcher.Constraint("DistanceY", -1, 1, 0, 2, 65.0))
sketch3.addConstraint(Sketcher.Constraint("DistanceY", -1, 1, 4, 2, 128.0))
pad3 = body.newObject("PartDesign::Pad", "Pad002")
pad3.Profile = sketch3
pad3.Length = 4

# Sketch on XZ plane
sketch4 = body.newObject("Sketcher::SketchObject", "Sketch003")
sketch4.AttachmentSupport = (doc.getObject("XZ_Plane"), [""])
sketch4.MapMode = "FlatFace"
sketch4.AttachmentOffset = App.Placement(App.Vector(0, 0, 2), App.Rotation())
add_polygon(sketch4, [(-150, 28), (-165, 28), (-165, 13)])  # lines 0-2
add_polygon(sketch4, [(-165, -13), (-165, -28), (-150, -28)])  # lines 3-5
add_polygon(sketch4, [(165, 13), (165, 28), (150, 28)])  # lines 6-8
add_polygon(sketch4, [(150, -28), (165, -28), (165, -13)])  # lines 9-11
sketch4.addConstraint(Sketcher.Constraint("Horizontal", 0))
sketch4.addConstraint(Sketcher.Constraint("Vertical", 1))
sketch4.addConstraint(Sketcher.Constraint("Vertical", 3))
sketch4.addConstraint(Sketcher.Constraint("Horizontal", 4))
sketch4.addConstraint(Sketcher.Constraint("Vertical", 6))
sketch4.addConstraint(Sketcher.Constraint("Horizontal", 7))
sketch4.addConstraint(Sketcher.Constraint("Horizontal", 9))
sketch4.addConstraint(Sketcher.Constraint("Vertical", 10))
sketch4.addConstraint(Sketcher.Constraint("Symmetric", 3, 2, 6, 2, -1, 1))
sketch4.addConstraint(Sketcher.Constraint("Symmetric", 0, 2, 9, 2, -1, 1))
sketch4.addConstraint(Sketcher.Constraint("Symmetric", 0, 2, 6, 2, -2))
sketch4.addConstraint(Sketcher.Constraint("Perpendicular", 2, 5))
sketch4.addConstraint(Sketcher.Constraint("Parallel", 5, 8))
sketch4.addConstraint(Sketcher.Constraint("Perpendicular", 8, 11))
sketch4.addConstraint(Sketcher.Constraint("Horizontal", 1, 2, 8, 2))
sketch4.addConstraint(Sketcher.Constraint("Horizontal", 5, 2, 10, 2))
sketch4.addConstraint(Sketcher.Constraint("Vertical", 2, 2, 4, 2))
sketch4.addConstraint(Sketcher.Constraint("Vertical", 7, 2, 11, 2))
sketch4.addConstraint(Sketcher.Constraint("DistanceX", 0, 2, 0, 1, 15.0))
sketch4.addConstraint(Sketcher.Constraint("DistanceX", 0, 2, -1, 1, 165.0))
sketch4.addConstraint(Sketcher.Constraint("DistanceY", -1, 1, 0, 2, 28.0))
pocket1 = body.newObject("PartDesign::Pocket", "Pocket")
pocket1.Profile = sketch4
pocket1.Length = 10

doc.recompute()
